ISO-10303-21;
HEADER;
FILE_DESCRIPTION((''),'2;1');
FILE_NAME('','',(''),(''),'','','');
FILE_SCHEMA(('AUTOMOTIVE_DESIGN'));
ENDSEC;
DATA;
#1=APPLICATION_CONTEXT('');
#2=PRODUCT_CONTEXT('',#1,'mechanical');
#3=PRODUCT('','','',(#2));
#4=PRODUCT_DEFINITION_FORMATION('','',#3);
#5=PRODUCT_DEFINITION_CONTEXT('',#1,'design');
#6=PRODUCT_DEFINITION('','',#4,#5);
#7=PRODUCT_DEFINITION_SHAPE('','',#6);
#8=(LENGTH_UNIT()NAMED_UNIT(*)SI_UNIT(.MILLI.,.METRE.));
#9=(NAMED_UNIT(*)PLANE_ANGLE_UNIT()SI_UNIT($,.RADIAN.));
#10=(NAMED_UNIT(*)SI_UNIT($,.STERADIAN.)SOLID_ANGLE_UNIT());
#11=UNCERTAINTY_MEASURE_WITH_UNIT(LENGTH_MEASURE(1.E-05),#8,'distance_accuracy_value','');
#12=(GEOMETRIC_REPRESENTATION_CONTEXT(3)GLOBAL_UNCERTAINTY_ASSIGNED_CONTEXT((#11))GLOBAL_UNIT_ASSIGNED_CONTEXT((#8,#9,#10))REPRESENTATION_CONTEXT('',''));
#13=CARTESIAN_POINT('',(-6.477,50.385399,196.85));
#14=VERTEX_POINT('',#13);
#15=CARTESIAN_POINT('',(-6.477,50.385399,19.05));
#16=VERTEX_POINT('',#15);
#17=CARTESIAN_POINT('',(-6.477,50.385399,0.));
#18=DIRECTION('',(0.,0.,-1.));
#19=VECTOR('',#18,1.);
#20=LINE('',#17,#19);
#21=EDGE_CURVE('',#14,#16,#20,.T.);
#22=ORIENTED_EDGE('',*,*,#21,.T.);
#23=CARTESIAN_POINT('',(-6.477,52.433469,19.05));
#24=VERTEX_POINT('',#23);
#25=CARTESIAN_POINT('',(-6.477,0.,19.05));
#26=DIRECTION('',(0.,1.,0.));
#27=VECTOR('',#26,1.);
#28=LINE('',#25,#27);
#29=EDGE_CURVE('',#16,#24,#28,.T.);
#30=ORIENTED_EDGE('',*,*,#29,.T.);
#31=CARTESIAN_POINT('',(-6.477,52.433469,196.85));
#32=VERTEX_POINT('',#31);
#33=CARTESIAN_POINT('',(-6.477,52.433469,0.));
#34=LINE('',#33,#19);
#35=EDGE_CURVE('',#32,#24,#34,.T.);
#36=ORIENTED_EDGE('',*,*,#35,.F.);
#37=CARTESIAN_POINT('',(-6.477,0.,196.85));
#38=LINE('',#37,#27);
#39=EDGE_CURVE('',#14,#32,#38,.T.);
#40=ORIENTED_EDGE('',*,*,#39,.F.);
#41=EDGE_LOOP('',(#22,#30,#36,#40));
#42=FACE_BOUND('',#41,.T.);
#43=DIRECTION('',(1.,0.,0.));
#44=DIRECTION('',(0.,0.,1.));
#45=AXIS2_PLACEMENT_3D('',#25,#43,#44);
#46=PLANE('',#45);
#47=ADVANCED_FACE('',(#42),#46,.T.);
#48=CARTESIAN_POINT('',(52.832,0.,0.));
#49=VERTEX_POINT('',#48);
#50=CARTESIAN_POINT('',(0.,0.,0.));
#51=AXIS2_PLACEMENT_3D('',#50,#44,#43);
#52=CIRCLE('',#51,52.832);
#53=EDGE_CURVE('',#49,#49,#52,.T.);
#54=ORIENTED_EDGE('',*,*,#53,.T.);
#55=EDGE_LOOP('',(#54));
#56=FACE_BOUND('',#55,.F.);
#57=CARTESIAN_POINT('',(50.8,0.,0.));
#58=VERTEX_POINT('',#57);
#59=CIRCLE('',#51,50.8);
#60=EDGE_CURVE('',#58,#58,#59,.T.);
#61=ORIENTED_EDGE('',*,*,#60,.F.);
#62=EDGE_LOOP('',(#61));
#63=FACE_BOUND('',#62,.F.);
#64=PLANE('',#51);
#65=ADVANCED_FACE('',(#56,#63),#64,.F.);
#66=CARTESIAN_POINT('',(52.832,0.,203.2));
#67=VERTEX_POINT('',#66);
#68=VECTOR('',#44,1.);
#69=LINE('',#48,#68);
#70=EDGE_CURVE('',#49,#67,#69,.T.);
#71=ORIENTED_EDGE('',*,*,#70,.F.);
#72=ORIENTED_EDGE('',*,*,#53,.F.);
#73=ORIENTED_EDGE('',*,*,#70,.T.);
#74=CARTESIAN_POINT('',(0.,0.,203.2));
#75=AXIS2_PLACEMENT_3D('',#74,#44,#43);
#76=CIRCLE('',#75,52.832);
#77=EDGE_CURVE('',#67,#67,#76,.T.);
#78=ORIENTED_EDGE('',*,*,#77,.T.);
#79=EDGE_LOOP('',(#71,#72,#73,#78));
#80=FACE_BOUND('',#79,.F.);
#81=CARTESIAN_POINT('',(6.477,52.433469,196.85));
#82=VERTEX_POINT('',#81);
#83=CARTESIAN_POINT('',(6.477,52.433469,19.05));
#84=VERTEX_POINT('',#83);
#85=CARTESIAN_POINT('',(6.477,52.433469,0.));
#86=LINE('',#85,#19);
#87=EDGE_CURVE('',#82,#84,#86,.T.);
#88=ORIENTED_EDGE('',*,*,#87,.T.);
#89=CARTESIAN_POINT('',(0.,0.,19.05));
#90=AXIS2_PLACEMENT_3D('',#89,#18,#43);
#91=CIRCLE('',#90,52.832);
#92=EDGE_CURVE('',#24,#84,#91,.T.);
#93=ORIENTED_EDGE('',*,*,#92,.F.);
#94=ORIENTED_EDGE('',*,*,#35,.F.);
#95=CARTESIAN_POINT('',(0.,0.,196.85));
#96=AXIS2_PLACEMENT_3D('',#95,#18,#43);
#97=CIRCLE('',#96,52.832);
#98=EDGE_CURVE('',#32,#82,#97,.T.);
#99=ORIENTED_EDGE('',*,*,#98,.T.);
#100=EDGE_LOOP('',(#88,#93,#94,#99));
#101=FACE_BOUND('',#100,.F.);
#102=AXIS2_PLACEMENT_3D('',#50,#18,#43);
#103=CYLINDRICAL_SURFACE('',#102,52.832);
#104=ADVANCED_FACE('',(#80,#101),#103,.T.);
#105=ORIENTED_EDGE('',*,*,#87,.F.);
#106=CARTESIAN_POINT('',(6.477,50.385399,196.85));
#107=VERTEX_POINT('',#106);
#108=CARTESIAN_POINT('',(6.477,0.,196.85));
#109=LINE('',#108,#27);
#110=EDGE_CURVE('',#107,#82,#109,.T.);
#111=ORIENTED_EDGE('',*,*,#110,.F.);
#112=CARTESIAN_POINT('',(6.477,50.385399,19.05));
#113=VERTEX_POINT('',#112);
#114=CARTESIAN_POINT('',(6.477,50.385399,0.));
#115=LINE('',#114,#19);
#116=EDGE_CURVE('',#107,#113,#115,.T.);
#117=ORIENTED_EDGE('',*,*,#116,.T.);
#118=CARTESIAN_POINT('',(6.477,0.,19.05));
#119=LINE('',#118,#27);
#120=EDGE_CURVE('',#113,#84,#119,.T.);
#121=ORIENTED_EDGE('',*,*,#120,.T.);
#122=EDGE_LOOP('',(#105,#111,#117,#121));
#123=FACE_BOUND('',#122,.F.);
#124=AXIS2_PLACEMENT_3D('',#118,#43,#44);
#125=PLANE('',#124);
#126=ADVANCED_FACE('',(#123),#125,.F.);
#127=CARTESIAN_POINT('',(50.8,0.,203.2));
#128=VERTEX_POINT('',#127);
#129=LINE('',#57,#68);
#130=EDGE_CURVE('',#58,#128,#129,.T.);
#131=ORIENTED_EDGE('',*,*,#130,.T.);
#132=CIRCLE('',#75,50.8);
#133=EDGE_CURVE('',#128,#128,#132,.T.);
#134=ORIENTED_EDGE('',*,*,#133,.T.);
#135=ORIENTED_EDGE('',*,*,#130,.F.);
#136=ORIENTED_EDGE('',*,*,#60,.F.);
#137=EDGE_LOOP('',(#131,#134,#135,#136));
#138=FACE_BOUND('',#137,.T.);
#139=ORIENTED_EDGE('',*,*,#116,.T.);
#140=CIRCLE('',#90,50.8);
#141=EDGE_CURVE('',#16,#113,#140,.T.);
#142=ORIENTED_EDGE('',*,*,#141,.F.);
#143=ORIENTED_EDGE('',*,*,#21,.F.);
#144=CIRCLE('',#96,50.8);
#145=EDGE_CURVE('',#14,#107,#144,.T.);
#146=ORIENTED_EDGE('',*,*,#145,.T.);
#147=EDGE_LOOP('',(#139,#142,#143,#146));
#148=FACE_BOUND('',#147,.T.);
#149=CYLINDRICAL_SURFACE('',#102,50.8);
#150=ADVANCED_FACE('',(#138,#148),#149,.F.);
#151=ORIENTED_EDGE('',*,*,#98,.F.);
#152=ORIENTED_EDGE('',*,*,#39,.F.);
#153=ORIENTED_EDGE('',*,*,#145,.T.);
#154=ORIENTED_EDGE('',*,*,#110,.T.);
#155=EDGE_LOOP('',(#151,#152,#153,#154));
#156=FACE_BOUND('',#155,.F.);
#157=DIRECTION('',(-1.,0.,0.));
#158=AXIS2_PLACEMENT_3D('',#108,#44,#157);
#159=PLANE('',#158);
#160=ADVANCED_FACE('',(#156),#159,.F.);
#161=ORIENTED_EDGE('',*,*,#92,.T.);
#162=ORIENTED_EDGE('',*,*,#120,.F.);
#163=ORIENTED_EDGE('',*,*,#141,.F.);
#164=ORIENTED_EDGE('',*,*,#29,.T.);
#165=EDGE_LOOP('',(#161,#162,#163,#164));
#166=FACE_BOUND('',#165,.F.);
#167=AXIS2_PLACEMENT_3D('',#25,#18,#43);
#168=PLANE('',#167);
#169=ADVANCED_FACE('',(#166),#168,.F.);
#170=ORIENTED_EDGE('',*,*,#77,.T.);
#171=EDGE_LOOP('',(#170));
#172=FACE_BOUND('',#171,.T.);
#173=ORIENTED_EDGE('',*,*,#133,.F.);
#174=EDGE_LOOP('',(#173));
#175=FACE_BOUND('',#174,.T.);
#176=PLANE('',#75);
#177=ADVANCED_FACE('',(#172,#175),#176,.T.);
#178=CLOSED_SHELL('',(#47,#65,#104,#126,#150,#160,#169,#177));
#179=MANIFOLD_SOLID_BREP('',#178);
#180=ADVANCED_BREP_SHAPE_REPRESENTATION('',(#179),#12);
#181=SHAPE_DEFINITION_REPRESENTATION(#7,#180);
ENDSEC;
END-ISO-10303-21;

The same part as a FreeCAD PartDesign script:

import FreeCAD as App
import Part
import Sketcher
from FreeCAD import Vector
Q = App.Units.Quantity

doc = App.newDocument("Part")
body = doc.addObject("PartDesign::Body", "Body")

sketch1 = body.newObject("Sketcher::SketchObject", "Sketch")
sketch1.AttachmentSupport = (doc.getObject("XY_Plane"), [""])
sketch1.MapMode = "FlatFace"
sketch1.addGeometry([
    Part.Circle(Vector(0, 0, 0), Vector(0, 0, 1), 53),
    Part.Circle(Vector(0, 0, 0), Vector(0, 0, 1), 51),
], False)
sketch1.addConstraint([
    Sketcher.Constraint("Coincident", 0, 3, -1, 1),
    Sketcher.Constraint("Coincident", 1, 3, -1, 1),
    Sketcher.Constraint("Diameter", 1, Q("4 in")),
    Sketcher.Constraint("Diameter", 0, Q("4.16 in")),
])
pad1 = body.newObject("PartDesign::Pad", "Pad")
pad1.Profile = sketch1
pad1.Length = Q("8 in")

sketch2 = body.newObject("Sketcher::SketchObject", "Sketch001")
sketch2.AttachmentSupport = (doc.getObject("XZ_Plane"), [""])
sketch2.MapMode = "FlatFace"
sketch2.addGeometry([
    Part.LineSegment(Vector(-6, 197, 0), Vector(-6, 19, 0)),
    Part.LineSegment(Vector(-6, 19, 0), Vector(6, 19, 0)),
    Part.LineSegment(Vector(6, 19, 0), Vector(6, 197, 0)),
    Part.LineSegment(Vector(6, 197, 0), Vector(-6, 197, 0)),
], False)
sketch2.addConstraint([
    Sketcher.Constraint("Coincident", 0, 2, 1, 1),
    Sketcher.Constraint("Coincident", 1, 2, 2, 1),
    Sketcher.Constraint("Coincident", 2, 2, 3, 1),
    Sketcher.Constraint("Coincident", 3, 2, 0, 1),
    Sketcher.Constraint("Vertical", 0),
    Sketcher.Constraint("Horizontal", 1),
    Sketcher.Constraint("Vertical", 2),
    Sketcher.Constraint("Horizontal", 3),
    Sketcher.Constraint("DistanceY", 0, 2, 0, 1, Q("7 in")),
    Sketcher.Constraint("DistanceX", 1, 1, 1, 2, Q("0.51 in")),
    Sketcher.Constraint("DistanceY", -1, 1, 0, 2, Q("0.75 in")),
    Sketcher.Constraint("DistanceX", 0, 2, -1, 1, Q("0.255 in")),
])
pocket1 = body.newObject("PartDesign::Pocket", "Pocket")
pocket1.Profile = sketch2
pocket1.Length = Q("3 in")

doc.recompute()
